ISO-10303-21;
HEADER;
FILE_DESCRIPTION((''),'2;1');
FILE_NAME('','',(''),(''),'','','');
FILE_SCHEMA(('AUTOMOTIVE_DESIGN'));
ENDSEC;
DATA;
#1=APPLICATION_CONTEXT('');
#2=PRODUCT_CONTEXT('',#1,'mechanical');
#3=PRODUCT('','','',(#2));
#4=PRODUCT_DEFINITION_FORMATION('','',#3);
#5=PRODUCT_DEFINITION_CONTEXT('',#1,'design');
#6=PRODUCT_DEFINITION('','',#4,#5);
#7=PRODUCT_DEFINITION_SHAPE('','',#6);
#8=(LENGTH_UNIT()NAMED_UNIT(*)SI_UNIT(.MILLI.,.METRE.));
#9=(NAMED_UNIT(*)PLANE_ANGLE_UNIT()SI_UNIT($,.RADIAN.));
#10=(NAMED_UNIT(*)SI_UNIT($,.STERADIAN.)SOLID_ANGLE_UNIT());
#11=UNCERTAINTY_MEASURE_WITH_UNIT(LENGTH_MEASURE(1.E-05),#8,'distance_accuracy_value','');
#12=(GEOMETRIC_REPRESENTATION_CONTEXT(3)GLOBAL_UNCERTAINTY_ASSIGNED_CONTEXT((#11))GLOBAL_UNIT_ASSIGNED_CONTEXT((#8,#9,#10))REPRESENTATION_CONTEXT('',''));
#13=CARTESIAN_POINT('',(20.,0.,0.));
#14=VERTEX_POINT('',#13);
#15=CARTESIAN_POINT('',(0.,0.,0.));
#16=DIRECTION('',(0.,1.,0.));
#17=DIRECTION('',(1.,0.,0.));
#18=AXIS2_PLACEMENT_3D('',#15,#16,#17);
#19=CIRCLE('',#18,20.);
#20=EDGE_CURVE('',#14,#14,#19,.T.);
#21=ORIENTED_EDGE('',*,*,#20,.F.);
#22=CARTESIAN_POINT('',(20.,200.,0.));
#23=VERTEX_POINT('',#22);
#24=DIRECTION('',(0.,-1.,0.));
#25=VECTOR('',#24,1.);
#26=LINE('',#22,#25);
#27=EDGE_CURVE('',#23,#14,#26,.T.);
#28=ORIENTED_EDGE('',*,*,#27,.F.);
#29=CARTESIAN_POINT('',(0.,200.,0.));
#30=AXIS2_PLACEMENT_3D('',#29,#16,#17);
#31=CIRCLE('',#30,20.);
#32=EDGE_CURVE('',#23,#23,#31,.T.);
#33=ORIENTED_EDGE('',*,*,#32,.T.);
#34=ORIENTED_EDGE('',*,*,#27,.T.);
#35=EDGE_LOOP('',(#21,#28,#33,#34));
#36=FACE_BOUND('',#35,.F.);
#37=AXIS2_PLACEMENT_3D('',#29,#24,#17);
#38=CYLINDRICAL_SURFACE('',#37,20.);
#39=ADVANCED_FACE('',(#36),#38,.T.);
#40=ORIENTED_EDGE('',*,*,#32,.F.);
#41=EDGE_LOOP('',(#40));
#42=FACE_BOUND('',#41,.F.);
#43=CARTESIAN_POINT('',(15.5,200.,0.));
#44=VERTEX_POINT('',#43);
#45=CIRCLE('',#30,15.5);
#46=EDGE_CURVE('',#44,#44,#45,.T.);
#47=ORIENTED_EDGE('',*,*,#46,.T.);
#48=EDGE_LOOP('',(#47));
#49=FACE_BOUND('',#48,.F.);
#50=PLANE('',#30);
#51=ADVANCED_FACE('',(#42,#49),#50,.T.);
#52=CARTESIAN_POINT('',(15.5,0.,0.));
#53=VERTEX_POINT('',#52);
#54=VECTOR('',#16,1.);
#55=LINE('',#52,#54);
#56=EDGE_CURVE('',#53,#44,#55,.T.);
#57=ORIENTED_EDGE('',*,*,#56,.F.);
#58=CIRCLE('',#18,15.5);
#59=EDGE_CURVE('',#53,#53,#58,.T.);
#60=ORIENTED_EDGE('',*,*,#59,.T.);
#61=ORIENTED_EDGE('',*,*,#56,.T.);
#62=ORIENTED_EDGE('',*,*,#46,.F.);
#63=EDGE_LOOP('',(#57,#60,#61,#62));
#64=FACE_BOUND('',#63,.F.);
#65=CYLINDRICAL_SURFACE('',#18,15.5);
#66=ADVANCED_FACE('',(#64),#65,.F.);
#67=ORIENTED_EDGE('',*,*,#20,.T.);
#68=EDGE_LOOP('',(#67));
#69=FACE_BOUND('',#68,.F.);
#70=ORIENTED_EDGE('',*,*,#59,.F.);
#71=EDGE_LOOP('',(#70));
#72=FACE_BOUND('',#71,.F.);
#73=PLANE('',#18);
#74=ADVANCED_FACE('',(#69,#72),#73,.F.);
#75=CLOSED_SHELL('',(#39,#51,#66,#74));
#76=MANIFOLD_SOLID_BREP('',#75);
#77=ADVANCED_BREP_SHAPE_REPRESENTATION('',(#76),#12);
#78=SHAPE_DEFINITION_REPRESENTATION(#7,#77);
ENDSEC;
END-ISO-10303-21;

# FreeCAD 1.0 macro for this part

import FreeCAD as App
import Part
import Sketcher
Q = App.Units.Quantity

doc = App.newDocument("Part")
params = doc.addObject("Spreadsheet::Sheet", "Params")
for row, (alias, value) in enumerate([
    ("sketch1_height", "200 mm"),
    ("revolution_angle", "360 deg"),
], start=1):
    params.set(f"A{row}", alias)
    params.set(f"B{row}", "=" + value)
    params.setAlias(f"B{row}", alias)

body = doc.addObject("PartDesign::Body", "Body")

# Sketch on XY plane
sketch1 = doc.addObject("Sketcher::SketchObject", "Sketch")
body.addObject(sketch1)
sketch1.AttachmentSupport = (doc.XY_Plane, [""])
sketch1.MapMode = "FlatFace"
sketch1.addGeometry(Part.LineSegment(App.Vector(15.5, 200, 0), App.Vector(15.5, 0, 0)), False)
sketch1.addGeometry(Part.LineSegment(App.Vector(15.5, 0, 0), App.Vector(20, 0, 0)), False)
sketch1.addGeometry(Part.LineSegment(App.Vector(20, 0, 0), App.Vector(20, 200, 0)), False)
sketch1.addGeometry(Part.LineSegment(App.Vector(20, 200, 0), App.Vector(15.5, 200, 0)), False)
sketch1.addConstraint(Sketcher.Constraint("Coincident", 0, 2, 1, 1))
sketch1.addConstraint(Sketcher.Constraint("Coincident", 1, 2, 2, 1))
sketch1.addConstraint(Sketcher.Constraint("Coincident", 2, 2, 3, 1))
sketch1.addConstraint(Sketcher.Constraint("Coincident", 3, 2, 0, 1))
sketch1.addConstraint(Sketcher.Constraint("Vertical", 0))
sketch1.addConstraint(Sketcher.Constraint("Horizontal", 1))
sketch1.addConstraint(Sketcher.Constraint("Vertical", 2))
sketch1.addConstraint(Sketcher.Constraint("Horizontal", 3))
sketch1.addConstraint(Sketcher.Constraint("PointOnObject", 0, 2, -1))
sketch1.addConstraint(Sketcher.Constraint("DistanceY", 0, 2, 0, 1, Q("200 mm")))
sketch1.addConstraint(Sketcher.Constraint("DistanceX", -1, 1, 1, 2, Q("20 mm")))
sketch1.addConstraint(Sketcher.Constraint("DistanceX", -1, 1, 0, 2, Q("15.5 mm")))
sketch1.setExpression("Constraints[9]", "Params.sketch1_height")
revolution = doc.addObject("PartDesign::Revolution", "Revolution")
body.addObject(revolution)
revolution.Profile = sketch1
revolution.ReferenceAxis = (sketch1, ["V_Axis"])
revolution.setExpression("Angle", "Params.revolution_angle")

doc.recompute()
